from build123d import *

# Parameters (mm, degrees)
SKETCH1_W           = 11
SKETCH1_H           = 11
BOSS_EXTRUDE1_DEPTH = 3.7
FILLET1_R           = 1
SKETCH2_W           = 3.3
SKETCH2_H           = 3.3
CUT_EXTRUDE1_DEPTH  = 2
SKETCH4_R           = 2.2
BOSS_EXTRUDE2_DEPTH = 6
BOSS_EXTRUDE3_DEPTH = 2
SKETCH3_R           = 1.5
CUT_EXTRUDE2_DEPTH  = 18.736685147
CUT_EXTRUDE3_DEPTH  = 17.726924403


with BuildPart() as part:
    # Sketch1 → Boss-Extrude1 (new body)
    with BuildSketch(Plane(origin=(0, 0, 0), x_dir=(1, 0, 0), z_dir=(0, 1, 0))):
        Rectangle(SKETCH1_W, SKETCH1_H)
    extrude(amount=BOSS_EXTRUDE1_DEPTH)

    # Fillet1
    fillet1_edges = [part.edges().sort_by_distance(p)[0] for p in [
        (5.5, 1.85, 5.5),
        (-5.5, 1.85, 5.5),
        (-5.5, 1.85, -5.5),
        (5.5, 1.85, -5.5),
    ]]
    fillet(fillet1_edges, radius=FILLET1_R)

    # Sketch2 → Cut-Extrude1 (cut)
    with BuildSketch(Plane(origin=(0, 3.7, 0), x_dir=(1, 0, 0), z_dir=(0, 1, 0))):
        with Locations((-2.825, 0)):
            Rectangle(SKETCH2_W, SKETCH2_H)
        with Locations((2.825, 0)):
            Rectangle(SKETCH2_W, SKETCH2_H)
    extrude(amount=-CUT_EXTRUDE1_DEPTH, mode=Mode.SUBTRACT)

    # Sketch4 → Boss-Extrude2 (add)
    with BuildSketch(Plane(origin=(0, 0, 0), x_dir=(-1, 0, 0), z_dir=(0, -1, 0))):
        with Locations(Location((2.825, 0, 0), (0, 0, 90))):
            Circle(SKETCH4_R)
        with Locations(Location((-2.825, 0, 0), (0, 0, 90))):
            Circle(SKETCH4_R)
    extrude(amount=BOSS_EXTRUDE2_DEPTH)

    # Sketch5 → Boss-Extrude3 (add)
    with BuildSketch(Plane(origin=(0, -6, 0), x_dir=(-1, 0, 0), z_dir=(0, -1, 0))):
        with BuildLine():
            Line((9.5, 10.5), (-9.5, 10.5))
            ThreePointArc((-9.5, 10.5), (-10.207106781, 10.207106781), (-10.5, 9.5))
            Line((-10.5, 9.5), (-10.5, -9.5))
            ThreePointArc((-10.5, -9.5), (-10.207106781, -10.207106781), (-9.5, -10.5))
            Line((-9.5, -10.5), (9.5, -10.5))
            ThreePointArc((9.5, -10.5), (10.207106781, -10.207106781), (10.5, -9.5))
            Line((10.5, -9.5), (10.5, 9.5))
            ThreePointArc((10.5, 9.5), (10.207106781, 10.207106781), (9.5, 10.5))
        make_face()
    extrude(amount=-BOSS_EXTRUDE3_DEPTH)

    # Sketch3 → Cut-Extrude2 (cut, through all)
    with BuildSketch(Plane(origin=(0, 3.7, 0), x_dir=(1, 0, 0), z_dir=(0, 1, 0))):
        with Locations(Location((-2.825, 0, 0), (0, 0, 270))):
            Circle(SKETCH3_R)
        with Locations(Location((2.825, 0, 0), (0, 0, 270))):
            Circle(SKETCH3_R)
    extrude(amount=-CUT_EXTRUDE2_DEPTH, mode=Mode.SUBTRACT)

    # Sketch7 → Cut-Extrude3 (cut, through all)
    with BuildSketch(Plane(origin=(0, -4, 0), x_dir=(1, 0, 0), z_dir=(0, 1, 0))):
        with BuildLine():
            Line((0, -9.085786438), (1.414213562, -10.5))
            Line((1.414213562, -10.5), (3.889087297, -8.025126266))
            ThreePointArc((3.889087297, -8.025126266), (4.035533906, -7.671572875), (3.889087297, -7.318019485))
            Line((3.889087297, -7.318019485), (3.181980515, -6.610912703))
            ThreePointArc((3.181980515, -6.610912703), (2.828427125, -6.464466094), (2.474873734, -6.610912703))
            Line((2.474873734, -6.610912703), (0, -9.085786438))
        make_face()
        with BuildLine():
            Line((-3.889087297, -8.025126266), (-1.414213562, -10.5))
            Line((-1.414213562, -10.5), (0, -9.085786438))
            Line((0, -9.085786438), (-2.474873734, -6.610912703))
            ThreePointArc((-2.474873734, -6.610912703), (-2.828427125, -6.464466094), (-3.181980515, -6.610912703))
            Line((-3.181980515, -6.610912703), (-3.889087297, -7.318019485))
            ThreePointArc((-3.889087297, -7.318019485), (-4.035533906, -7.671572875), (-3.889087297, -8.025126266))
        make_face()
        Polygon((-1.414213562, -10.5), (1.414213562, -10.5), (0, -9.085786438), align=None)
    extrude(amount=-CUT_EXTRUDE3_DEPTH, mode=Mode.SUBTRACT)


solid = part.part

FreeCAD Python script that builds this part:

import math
import FreeCAD as App
import Part
import Sketcher
Q = App.Units.Quantity


def edges_at(feature, points):
    """Names of the edges that pass closest to the given points."""
    edges = feature.Shape.Edges
    near = lambda p: min(range(len(edges)), key=lambda i: edges[i].distToShape(Part.Vertex(*p))[0])
    return sorted({f"Edge{near(p) + 1}" for p in points})

doc = App.newDocument("Part")
body = doc.addObject("PartDesign::Body", "Body")

# Sketch on XZ plane
sketch1 = doc.addObject("Sketcher::SketchObject", "Sketch")
body.addObject(sketch1)
sketch1.AttachmentSupport = (doc.XZ_Plane, [""])
sketch1.MapMode = "FlatFace"
sketch1.addGeometry([
    Part.LineSegment(App.Vector(-5.5, -5.5, 0), App.Vector(-5.5, 5.5, 0)),
    Part.LineSegment(App.Vector(-5.5, 5.5, 0), App.Vector(5.5, 5.5, 0)),
    Part.LineSegment(App.Vector(5.5, 5.5, 0), App.Vector(5.5, -5.5, 0)),
    Part.LineSegment(App.Vector(5.5, -5.5, 0), App.Vector(-5.5, -5.5, 0)),
], False)
sketch1.addConstraint([
    Sketcher.Constraint("Coincident", 0, 2, 1, 1),
    Sketcher.Constraint("Coincident", 1, 2, 2, 1),
    Sketcher.Constraint("Coincident", 2, 2, 3, 1),
    Sketcher.Constraint("Coincident", 3, 2, 0, 1),
    Sketcher.Constraint("Vertical", 0),
    Sketcher.Constraint("Horizontal", 1),
    Sketcher.Constraint("Vertical", 2),
    Sketcher.Constraint("Horizontal", 3),
    Sketcher.Constraint("Symmetric", 0, 2, 2, 2, -1, 1),
    Sketcher.Constraint("Equal", 3, 0),
    Sketcher.Constraint("DistanceX", 1, 1, 1, 2, Q("11 mm")),
])
pad1 = doc.addObject("PartDesign::Pad", "Pad")
body.addObject(pad1)
pad1.Profile = sketch1
pad1.Length = 3.7
pad1.Reversed = True
doc.recompute()

fillet = doc.addObject("PartDesign::Fillet", "Fillet")
body.addObject(fillet)
fillet.Base = (pad1, edges_at(pad1, [
    (5.5, 1.85, 5.5),
    (-5.5, 1.85, 5.5),
    (-5.5, 1.85, -5.5),
    (5.5, 1.85, -5.5),
]))
fillet.Radius = 1

# Sketch on XZ plane
sketch2 = doc.addObject("Sketcher::SketchObject", "Sketch001")
body.addObject(sketch2)
sketch2.AttachmentSupport = (doc.XZ_Plane, [""])
sketch2.MapMode = "FlatFace"
sketch2.AttachmentOffset = App.Placement(App.Vector(0, 0, -3.7), App.Rotation())
sketch2.addGeometry([
    Part.LineSegment(App.Vector(-4.475, -1.65, 0), App.Vector(-4.475, 1.65, 0)),  # 0
    Part.LineSegment(App.Vector(-4.475, 1.65, 0), App.Vector(-1.175, 1.65, 0)),  # 1
    Part.LineSegment(App.Vector(-1.175, 1.65, 0), App.Vector(-1.175, -1.65, 0)),  # 2
    Part.LineSegment(App.Vector(-1.175, -1.65, 0), App.Vector(-4.475, -1.65, 0)),  # 3
    Part.LineSegment(App.Vector(1.175, -1.65, 0), App.Vector(1.175, 1.65, 0)),  # 4
    Part.LineSegment(App.Vector(1.175, 1.65, 0), App.Vector(4.475, 1.65, 0)),  # 5
    Part.LineSegment(App.Vector(4.475, 1.65, 0), App.Vector(4.475, -1.65, 0)),  # 6
    Part.LineSegment(App.Vector(4.475, -1.65, 0), App.Vector(1.175, -1.65, 0)),  # 7
], False)
sketch2.addConstraint([
    Sketcher.Constraint("Coincident", 0, 2, 1, 1),
    Sketcher.Constraint("Coincident", 1, 2, 2, 1),
    Sketcher.Constraint("Coincident", 2, 2, 3, 1),
    Sketcher.Constraint("Coincident", 3, 2, 0, 1),
    Sketcher.Constraint("Coincident", 4, 2, 5, 1),
    Sketcher.Constraint("Coincident", 5, 2, 6, 1),
    Sketcher.Constraint("Coincident", 6, 2, 7, 1),
    Sketcher.Constraint("Coincident", 7, 2, 4, 1),
    Sketcher.Constraint("Vertical", 0),
    Sketcher.Constraint("Horizontal", 1),
    Sketcher.Constraint("Vertical", 2),
    Sketcher.Constraint("Horizontal", 3),
    Sketcher.Constraint("Vertical", 4),
    Sketcher.Constraint("Horizontal", 5),
    Sketcher.Constraint("Vertical", 6),
    Sketcher.Constraint("Horizontal", 7),
    Sketcher.Constraint("Symmetric", 2, 2, 4, 2, -1, 1),
    Sketcher.Constraint("Symmetric", 0, 2, 6, 2, -1, 1),
    Sketcher.Constraint("Horizontal", 1, 2, 4, 2),
    Sketcher.Constraint("Equal", 7, 0),
    Sketcher.Constraint("DistanceX", 1, 1, 1, 2, Q("3.3 mm")),
    Sketcher.Constraint("DistanceX", 1, 2, 4, 2, Q("2.35 mm")),
])
pocket1 = doc.addObject("PartDesign::Pocket", "Pocket")
body.addObject(pocket1)
pocket1.Profile = sketch2
pocket1.Length = 2
pocket1.Reversed = True

# Sketch on XZ plane
sketch3 = doc.addObject("Sketcher::SketchObject", "Sketch002")
body.addObject(sketch3)
sketch3.AttachmentSupport = (doc.XZ_Plane, [""])
sketch3.MapMode = "FlatFace"
sketch3.addGeometry([
    Part.Circle(App.Vector(-2.825, 0, 0), App.Vector(0, 0, 1), 2.2),
    Part.Circle(App.Vector(2.825, 0, 0), App.Vector(0, 0, 1), 2.2),
], False)
sketch3.addConstraint([
    Sketcher.Constraint("Equal", 0, 1),
    Sketcher.Constraint("Symmetric", 0, 3, 1, 3, -1, 1),
    Sketcher.Constraint("PointOnObject", 0, 3, -1),
    Sketcher.Constraint("Diameter", 0, Q("4.4 mm")),
    Sketcher.Constraint("DistanceX", 0, 3, 1, 3, Q("5.65 mm")),
])
pad2 = doc.addObject("PartDesign::Pad", "Pad001")
body.addObject(pad2)
pad2.Profile = sketch3
pad2.Length = 6

# Sketch on XZ plane
sketch4 = doc.addObject("Sketcher::SketchObject", "Sketch003")
body.addObject(sketch4)
sketch4.AttachmentSupport = (doc.XZ_Plane, [""])
sketch4.MapMode = "FlatFace"
sketch4.AttachmentOffset = App.Placement(App.Vector(0, 0, 6), App.Rotation())
sketch4.addGeometry([
    Part.LineSegment(App.Vector(-9.5, -10.5, 0), App.Vector(9.5, -10.5, 0)),  # 0
    Part.ArcOfCircle(Part.Circle(App.Vector(9.5, -9.5, 0), App.Vector(0, 0, 1), 1), math.radians(-90), math.radians(0)),  # 1
    Part.LineSegment(App.Vector(10.5, -9.5, 0), App.Vector(10.5, 9.5, 0)),  # 2
    Part.ArcOfCircle(Part.Circle(App.Vector(9.5, 9.5, 0), App.Vector(0, 0, 1), 1), math.radians(0), math.radians(90)),  # 3
    Part.LineSegment(App.Vector(9.5, 10.5, 0), App.Vector(-9.5, 10.5, 0)),  # 4
    Part.ArcOfCircle(Part.Circle(App.Vector(-9.5, 9.5, 0), App.Vector(0, 0, 1), 1), math.radians(90), math.radians(180)),  # 5
    Part.LineSegment(App.Vector(-10.5, 9.5, 0), App.Vector(-10.5, -9.5, 0)),  # 6
    Part.ArcOfCircle(Part.Circle(App.Vector(-9.5, -9.5, 0), App.Vector(0, 0, 1), 1), math.radians(-180), math.radians(-90)),  # 7
], False)
sketch4.addConstraint([
    Sketcher.Constraint("Tangent", 0, 2, 1, 1),
    Sketcher.Constraint("Tangent", 1, 2, 2, 1),
    Sketcher.Constraint("Tangent", 2, 2, 3, 1),
    Sketcher.Constraint("Tangent", 3, 2, 4, 1),
    Sketcher.Constraint("Tangent", 4, 2, 5, 1),
    Sketcher.Constraint("Tangent", 5, 2, 6, 1),
    Sketcher.Constraint("Tangent", 6, 2, 7, 1),
    Sketcher.Constraint("Tangent", 7, 2, 0, 1),
    Sketcher.Constraint("Horizontal", 0),
    Sketcher.Constraint("Vertical", 2),
    Sketcher.Constraint("Horizontal", 4),
    Sketcher.Constraint("Vertical", 6),
    Sketcher.Constraint("Equal", 1, 3),
    Sketcher.Constraint("Equal", 3, 5),
    Sketcher.Constraint("Equal", 5, 7),
    Sketcher.Constraint("Symmetric", 1, 3, 5, 3, -1, 1),
    Sketcher.Constraint("Equal", 4, 2),
    Sketcher.Constraint("Radius", 1, Q("1 mm")),
    Sketcher.Constraint("DistanceX", 0, 1, 0, 2, Q("19 mm")),
])
pad3 = doc.addObject("PartDesign::Pad", "Pad002")
body.addObject(pad3)
pad3.Profile = sketch4
pad3.Length = 2
pad3.Reversed = True

# Sketch on XZ plane
sketch5 = doc.addObject("Sketcher::SketchObject", "Sketch004")
body.addObject(sketch5)
sketch5.AttachmentSupport = (doc.XZ_Plane, [""])
sketch5.MapMode = "FlatFace"
sketch5.AttachmentOffset = App.Placement(App.Vector(0, 0, -3.7), App.Rotation())
sketch5.addGeometry([
    Part.Circle(App.Vector(-2.825, 0, 0), App.Vector(0, 0, 1), 1.5),
    Part.Circle(App.Vector(2.825, 0, 0), App.Vector(0, 0, 1), 1.5),
], False)
sketch5.addConstraint([
    Sketcher.Constraint("Equal", 0, 1),
    Sketcher.Constraint("Symmetric", 0, 3, 1, 3, -1, 1),
    Sketcher.Constraint("PointOnObject", 0, 3, -1),
    Sketcher.Constraint("Diameter", 0, Q("3 mm")),
    Sketcher.Constraint("DistanceX", 0, 3, 1, 3, Q("5.65 mm")),
])
pocket2 = doc.addObject("PartDesign::Pocket", "Pocket001")
body.addObject(pocket2)
pocket2.Profile = sketch5
pocket2.Type = "ThroughAll"
pocket2.Reversed = True

# Sketch on XZ plane
sketch6 = doc.addObject("Sketcher::SketchObject", "Sketch005")
body.addObject(sketch6)
sketch6.AttachmentSupport = (doc.XZ_Plane, [""])
sketch6.MapMode = "FlatFace"
sketch6.AttachmentOffset = App.Placement(App.Vector(0, 0, 4), App.Rotation())
sketch6.addGeometry([
    Part.LineSegment(App.Vector(1.414214, 10.5, 0), App.Vector(3.889087, 8.025126, 0)),  # 0
    Part.ArcOfCircle(Part.Circle(App.Vector(3.535534, 7.671573, 0), App.Vector(0, 0, 1), 0.5), math.radians(-45), math.radians(45)),  # 1
    Part.LineSegment(App.Vector(3.889087, 7.318019, 0), App.Vector(3.181981, 6.610913, 0)),  # 2
    Part.ArcOfCircle(Part.Circle(App.Vector(2.828427, 6.964466, 0), App.Vector(0, 0, 1), 0.5), math.radians(-135), math.radians(-45)),  # 3
    Part.LineSegment(App.Vector(2.474874, 6.610913, 0), App.Vector(0, 9.085786, 0)),  # 4
    Part.LineSegment(App.Vector(0, 9.085786, 0), App.Vector(-2.474874, 6.610913, 0)),  # 5
    Part.ArcOfCircle(Part.Circle(App.Vector(-2.828427, 6.964466, 0), App.Vector(0, 0, 1), 0.5), math.radians(-135), math.radians(-45)),  # 6
    Part.LineSegment(App.Vector(-3.181981, 6.610913, 0), App.Vector(-3.889087, 7.318019, 0)),  # 7
    Part.ArcOfCircle(Part.Circle(App.Vector(-3.535534, 7.671573, 0), App.Vector(0, 0, 1), 0.5), math.radians(135), math.radians(225)),  # 8
    Part.LineSegment(App.Vector(-3.889087, 8.025126, 0), App.Vector(-1.414214, 10.5, 0)),  # 9
    Part.LineSegment(App.Vector(-1.414214, 10.5, 0), App.Vector(1.414214, 10.5, 0)),  # 10
], False)
sketch6.addConstraint([
    Sketcher.Constraint("Tangent", 0, 2, 1, 2),
    Sketcher.Constraint("Tangent", 1, 1, 2, 1),
    Sketcher.Constraint("Tangent", 2, 2, 3, 2),
    Sketcher.Constraint("Tangent", 3, 1, 4, 1),
    Sketcher.Constraint("Coincident", 4, 2, 5, 1),
    Sketcher.Constraint("Tangent", 5, 2, 6, 2),
    Sketcher.Constraint("Tangent", 6, 1, 7, 1),
    Sketcher.Constraint("Tangent", 7, 2, 8, 2),
    Sketcher.Constraint("Tangent", 8, 1, 9, 1),
    Sketcher.Constraint("Coincident", 9, 2, 10, 1),
    Sketcher.Constraint("Coincident", 10, 2, 0, 1),
    Sketcher.Constraint("Horizontal", 10),
    Sketcher.Constraint("Equal", 1, 3),
    Sketcher.Constraint("Equal", 3, 6),
    Sketcher.Constraint("Equal", 6, 8),
    Sketcher.Constraint("Symmetric", 3, 3, 6, 3, -2),
    Sketcher.Constraint("Symmetric", 1, 3, 8, 3, -2),
    Sketcher.Constraint("PointOnObject", 4, 2, -2),
    Sketcher.Constraint("Perpendicular", 0, 2),
    Sketcher.Constraint("Perpendicular", 2, 4),
    Sketcher.Constraint("Perpendicular", 4, 5),
    Sketcher.Constraint("Perpendicular", 7, 9),
    Sketcher.Constraint("Equal", 0, 4),
    Sketcher.Constraint("Radius", 1, Q("0.5 mm")),
    Sketcher.Constraint("Distance", 2, Q("1 mm")),
    Sketcher.Constraint("Distance", 0, Q("3.5 mm")),
    Sketcher.Constraint("DistanceY", -1, 1, 9, 2, Q("10.5 mm")),
])
pocket3 = doc.addObject("PartDesign::Pocket", "Pocket002")
body.addObject(pocket3)
pocket3.Profile = sketch6
pocket3.Type = "ThroughAll"
pocket3.Reversed = True

doc.recompute()
